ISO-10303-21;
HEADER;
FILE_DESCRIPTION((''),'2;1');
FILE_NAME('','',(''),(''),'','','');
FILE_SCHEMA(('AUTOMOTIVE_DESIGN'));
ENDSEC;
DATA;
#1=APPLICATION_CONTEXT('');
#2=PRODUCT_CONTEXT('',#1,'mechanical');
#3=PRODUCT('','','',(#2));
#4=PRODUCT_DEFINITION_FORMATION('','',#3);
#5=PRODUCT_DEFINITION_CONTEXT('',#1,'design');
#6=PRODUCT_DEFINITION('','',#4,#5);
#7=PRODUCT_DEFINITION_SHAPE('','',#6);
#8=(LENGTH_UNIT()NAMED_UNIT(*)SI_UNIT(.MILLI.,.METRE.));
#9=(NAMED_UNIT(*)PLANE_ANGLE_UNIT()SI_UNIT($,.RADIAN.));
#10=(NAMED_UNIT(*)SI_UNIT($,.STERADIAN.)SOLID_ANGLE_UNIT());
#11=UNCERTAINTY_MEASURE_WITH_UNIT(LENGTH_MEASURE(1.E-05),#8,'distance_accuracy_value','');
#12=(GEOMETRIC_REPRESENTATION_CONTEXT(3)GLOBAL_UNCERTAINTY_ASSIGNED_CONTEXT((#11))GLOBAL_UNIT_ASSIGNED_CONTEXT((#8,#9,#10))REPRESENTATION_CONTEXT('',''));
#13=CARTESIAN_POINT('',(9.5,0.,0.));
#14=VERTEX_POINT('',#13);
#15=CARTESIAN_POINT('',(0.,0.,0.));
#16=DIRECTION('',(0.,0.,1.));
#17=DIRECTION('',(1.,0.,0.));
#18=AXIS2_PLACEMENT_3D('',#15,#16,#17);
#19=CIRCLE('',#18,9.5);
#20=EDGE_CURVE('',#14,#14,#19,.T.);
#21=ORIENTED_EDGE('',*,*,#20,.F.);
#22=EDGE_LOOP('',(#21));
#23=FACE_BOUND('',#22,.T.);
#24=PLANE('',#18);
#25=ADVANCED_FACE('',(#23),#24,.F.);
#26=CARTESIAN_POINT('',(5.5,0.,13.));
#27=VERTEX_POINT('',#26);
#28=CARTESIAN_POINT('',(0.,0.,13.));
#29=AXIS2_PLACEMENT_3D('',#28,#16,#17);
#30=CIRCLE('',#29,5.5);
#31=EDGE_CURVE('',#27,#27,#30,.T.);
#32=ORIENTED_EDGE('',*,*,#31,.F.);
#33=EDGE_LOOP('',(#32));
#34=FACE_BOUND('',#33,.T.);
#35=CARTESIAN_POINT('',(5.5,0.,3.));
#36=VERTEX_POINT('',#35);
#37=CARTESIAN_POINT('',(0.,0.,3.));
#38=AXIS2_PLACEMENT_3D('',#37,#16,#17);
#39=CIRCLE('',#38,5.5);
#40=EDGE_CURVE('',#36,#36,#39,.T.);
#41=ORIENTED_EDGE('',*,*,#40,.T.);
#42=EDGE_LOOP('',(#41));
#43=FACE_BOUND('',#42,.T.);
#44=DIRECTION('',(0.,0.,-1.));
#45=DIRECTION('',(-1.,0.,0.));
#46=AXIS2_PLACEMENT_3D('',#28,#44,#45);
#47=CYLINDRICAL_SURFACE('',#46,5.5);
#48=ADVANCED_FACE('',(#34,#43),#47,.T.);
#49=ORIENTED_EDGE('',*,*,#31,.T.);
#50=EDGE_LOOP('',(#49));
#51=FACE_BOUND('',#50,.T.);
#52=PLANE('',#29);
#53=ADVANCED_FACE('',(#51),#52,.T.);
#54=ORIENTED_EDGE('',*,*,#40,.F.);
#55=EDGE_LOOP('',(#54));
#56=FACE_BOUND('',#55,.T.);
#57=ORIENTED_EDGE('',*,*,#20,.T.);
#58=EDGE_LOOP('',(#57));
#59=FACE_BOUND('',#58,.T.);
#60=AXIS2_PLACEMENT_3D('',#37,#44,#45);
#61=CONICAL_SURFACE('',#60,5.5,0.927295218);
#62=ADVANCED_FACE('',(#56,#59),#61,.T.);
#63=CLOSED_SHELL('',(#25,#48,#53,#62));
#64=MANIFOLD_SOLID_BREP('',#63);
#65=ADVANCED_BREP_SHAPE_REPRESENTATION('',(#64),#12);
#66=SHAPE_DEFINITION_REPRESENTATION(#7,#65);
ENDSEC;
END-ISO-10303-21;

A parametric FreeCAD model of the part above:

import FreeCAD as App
import Part
import Sketcher
from FreeCAD import Vector
Q = App.Units.Quantity

doc = App.newDocument("Part")
body = doc.addObject("PartDesign::Body", "Body")

sketch1 = body.newObject("Sketcher::SketchObject", "Sketch")
sketch1.AttachmentSupport = (doc.getObject("XY_Plane"), [""])
sketch1.MapMode = "FlatFace"
sketch1.AttachmentOffset = App.Placement(Vector(0, 0, 3), App.Rotation())
sketch1.addGeometry(Part.Circle(Vector(0, 0, 0), Vector(0, 0, 1), 6), False)
sketch1.addConstraint(Sketcher.Constraint("Coincident", 0, 3, -1, 1))
sketch1.addConstraint(Sketcher.Constraint("Diameter", 0, Q("11 mm")))

sketch2 = body.newObject("Sketcher::SketchObject", "Sketch001")
sketch2.AttachmentSupport = (doc.getObject("XY_Plane"), [""])
sketch2.MapMode = "FlatFace"
sketch2.addGeometry(Part.Circle(Vector(0, 0, 0), Vector(0, 0, 1), 10), False)
sketch2.addConstraint(Sketcher.Constraint("Coincident", 0, 3, -1, 1))
sketch2.addConstraint(Sketcher.Constraint("Diameter", 0, Q("19 mm")))

additiveloft = body.newObject("PartDesign::AdditiveLoft", "AdditiveLoft")
additiveloft.Profile = sketch1
additiveloft.Sections = [sketch2]

sketch3 = body.newObject("Sketcher::SketchObject", "Sketch002")
sketch3.AttachmentSupport = (doc.getObject("XY_Plane"), [""])
sketch3.MapMode = "FlatFace"
sketch3.AttachmentOffset = App.Placement(Vector(0, 0, 3), App.Rotation())
sketch3.addGeometry(Part.Circle(Vector(0, 0, 0), Vector(0, 0, 1), 6), False)
sketch3.addConstraint(Sketcher.Constraint("Coincident", 0, 3, -1, 1))
sketch3.addConstraint(Sketcher.Constraint("Diameter", 0, Q("11 mm")))
pad1 = body.newObject("PartDesign::Pad", "Pad")
pad1.Profile = sketch3
pad1.Length = 10

doc.recompute()
